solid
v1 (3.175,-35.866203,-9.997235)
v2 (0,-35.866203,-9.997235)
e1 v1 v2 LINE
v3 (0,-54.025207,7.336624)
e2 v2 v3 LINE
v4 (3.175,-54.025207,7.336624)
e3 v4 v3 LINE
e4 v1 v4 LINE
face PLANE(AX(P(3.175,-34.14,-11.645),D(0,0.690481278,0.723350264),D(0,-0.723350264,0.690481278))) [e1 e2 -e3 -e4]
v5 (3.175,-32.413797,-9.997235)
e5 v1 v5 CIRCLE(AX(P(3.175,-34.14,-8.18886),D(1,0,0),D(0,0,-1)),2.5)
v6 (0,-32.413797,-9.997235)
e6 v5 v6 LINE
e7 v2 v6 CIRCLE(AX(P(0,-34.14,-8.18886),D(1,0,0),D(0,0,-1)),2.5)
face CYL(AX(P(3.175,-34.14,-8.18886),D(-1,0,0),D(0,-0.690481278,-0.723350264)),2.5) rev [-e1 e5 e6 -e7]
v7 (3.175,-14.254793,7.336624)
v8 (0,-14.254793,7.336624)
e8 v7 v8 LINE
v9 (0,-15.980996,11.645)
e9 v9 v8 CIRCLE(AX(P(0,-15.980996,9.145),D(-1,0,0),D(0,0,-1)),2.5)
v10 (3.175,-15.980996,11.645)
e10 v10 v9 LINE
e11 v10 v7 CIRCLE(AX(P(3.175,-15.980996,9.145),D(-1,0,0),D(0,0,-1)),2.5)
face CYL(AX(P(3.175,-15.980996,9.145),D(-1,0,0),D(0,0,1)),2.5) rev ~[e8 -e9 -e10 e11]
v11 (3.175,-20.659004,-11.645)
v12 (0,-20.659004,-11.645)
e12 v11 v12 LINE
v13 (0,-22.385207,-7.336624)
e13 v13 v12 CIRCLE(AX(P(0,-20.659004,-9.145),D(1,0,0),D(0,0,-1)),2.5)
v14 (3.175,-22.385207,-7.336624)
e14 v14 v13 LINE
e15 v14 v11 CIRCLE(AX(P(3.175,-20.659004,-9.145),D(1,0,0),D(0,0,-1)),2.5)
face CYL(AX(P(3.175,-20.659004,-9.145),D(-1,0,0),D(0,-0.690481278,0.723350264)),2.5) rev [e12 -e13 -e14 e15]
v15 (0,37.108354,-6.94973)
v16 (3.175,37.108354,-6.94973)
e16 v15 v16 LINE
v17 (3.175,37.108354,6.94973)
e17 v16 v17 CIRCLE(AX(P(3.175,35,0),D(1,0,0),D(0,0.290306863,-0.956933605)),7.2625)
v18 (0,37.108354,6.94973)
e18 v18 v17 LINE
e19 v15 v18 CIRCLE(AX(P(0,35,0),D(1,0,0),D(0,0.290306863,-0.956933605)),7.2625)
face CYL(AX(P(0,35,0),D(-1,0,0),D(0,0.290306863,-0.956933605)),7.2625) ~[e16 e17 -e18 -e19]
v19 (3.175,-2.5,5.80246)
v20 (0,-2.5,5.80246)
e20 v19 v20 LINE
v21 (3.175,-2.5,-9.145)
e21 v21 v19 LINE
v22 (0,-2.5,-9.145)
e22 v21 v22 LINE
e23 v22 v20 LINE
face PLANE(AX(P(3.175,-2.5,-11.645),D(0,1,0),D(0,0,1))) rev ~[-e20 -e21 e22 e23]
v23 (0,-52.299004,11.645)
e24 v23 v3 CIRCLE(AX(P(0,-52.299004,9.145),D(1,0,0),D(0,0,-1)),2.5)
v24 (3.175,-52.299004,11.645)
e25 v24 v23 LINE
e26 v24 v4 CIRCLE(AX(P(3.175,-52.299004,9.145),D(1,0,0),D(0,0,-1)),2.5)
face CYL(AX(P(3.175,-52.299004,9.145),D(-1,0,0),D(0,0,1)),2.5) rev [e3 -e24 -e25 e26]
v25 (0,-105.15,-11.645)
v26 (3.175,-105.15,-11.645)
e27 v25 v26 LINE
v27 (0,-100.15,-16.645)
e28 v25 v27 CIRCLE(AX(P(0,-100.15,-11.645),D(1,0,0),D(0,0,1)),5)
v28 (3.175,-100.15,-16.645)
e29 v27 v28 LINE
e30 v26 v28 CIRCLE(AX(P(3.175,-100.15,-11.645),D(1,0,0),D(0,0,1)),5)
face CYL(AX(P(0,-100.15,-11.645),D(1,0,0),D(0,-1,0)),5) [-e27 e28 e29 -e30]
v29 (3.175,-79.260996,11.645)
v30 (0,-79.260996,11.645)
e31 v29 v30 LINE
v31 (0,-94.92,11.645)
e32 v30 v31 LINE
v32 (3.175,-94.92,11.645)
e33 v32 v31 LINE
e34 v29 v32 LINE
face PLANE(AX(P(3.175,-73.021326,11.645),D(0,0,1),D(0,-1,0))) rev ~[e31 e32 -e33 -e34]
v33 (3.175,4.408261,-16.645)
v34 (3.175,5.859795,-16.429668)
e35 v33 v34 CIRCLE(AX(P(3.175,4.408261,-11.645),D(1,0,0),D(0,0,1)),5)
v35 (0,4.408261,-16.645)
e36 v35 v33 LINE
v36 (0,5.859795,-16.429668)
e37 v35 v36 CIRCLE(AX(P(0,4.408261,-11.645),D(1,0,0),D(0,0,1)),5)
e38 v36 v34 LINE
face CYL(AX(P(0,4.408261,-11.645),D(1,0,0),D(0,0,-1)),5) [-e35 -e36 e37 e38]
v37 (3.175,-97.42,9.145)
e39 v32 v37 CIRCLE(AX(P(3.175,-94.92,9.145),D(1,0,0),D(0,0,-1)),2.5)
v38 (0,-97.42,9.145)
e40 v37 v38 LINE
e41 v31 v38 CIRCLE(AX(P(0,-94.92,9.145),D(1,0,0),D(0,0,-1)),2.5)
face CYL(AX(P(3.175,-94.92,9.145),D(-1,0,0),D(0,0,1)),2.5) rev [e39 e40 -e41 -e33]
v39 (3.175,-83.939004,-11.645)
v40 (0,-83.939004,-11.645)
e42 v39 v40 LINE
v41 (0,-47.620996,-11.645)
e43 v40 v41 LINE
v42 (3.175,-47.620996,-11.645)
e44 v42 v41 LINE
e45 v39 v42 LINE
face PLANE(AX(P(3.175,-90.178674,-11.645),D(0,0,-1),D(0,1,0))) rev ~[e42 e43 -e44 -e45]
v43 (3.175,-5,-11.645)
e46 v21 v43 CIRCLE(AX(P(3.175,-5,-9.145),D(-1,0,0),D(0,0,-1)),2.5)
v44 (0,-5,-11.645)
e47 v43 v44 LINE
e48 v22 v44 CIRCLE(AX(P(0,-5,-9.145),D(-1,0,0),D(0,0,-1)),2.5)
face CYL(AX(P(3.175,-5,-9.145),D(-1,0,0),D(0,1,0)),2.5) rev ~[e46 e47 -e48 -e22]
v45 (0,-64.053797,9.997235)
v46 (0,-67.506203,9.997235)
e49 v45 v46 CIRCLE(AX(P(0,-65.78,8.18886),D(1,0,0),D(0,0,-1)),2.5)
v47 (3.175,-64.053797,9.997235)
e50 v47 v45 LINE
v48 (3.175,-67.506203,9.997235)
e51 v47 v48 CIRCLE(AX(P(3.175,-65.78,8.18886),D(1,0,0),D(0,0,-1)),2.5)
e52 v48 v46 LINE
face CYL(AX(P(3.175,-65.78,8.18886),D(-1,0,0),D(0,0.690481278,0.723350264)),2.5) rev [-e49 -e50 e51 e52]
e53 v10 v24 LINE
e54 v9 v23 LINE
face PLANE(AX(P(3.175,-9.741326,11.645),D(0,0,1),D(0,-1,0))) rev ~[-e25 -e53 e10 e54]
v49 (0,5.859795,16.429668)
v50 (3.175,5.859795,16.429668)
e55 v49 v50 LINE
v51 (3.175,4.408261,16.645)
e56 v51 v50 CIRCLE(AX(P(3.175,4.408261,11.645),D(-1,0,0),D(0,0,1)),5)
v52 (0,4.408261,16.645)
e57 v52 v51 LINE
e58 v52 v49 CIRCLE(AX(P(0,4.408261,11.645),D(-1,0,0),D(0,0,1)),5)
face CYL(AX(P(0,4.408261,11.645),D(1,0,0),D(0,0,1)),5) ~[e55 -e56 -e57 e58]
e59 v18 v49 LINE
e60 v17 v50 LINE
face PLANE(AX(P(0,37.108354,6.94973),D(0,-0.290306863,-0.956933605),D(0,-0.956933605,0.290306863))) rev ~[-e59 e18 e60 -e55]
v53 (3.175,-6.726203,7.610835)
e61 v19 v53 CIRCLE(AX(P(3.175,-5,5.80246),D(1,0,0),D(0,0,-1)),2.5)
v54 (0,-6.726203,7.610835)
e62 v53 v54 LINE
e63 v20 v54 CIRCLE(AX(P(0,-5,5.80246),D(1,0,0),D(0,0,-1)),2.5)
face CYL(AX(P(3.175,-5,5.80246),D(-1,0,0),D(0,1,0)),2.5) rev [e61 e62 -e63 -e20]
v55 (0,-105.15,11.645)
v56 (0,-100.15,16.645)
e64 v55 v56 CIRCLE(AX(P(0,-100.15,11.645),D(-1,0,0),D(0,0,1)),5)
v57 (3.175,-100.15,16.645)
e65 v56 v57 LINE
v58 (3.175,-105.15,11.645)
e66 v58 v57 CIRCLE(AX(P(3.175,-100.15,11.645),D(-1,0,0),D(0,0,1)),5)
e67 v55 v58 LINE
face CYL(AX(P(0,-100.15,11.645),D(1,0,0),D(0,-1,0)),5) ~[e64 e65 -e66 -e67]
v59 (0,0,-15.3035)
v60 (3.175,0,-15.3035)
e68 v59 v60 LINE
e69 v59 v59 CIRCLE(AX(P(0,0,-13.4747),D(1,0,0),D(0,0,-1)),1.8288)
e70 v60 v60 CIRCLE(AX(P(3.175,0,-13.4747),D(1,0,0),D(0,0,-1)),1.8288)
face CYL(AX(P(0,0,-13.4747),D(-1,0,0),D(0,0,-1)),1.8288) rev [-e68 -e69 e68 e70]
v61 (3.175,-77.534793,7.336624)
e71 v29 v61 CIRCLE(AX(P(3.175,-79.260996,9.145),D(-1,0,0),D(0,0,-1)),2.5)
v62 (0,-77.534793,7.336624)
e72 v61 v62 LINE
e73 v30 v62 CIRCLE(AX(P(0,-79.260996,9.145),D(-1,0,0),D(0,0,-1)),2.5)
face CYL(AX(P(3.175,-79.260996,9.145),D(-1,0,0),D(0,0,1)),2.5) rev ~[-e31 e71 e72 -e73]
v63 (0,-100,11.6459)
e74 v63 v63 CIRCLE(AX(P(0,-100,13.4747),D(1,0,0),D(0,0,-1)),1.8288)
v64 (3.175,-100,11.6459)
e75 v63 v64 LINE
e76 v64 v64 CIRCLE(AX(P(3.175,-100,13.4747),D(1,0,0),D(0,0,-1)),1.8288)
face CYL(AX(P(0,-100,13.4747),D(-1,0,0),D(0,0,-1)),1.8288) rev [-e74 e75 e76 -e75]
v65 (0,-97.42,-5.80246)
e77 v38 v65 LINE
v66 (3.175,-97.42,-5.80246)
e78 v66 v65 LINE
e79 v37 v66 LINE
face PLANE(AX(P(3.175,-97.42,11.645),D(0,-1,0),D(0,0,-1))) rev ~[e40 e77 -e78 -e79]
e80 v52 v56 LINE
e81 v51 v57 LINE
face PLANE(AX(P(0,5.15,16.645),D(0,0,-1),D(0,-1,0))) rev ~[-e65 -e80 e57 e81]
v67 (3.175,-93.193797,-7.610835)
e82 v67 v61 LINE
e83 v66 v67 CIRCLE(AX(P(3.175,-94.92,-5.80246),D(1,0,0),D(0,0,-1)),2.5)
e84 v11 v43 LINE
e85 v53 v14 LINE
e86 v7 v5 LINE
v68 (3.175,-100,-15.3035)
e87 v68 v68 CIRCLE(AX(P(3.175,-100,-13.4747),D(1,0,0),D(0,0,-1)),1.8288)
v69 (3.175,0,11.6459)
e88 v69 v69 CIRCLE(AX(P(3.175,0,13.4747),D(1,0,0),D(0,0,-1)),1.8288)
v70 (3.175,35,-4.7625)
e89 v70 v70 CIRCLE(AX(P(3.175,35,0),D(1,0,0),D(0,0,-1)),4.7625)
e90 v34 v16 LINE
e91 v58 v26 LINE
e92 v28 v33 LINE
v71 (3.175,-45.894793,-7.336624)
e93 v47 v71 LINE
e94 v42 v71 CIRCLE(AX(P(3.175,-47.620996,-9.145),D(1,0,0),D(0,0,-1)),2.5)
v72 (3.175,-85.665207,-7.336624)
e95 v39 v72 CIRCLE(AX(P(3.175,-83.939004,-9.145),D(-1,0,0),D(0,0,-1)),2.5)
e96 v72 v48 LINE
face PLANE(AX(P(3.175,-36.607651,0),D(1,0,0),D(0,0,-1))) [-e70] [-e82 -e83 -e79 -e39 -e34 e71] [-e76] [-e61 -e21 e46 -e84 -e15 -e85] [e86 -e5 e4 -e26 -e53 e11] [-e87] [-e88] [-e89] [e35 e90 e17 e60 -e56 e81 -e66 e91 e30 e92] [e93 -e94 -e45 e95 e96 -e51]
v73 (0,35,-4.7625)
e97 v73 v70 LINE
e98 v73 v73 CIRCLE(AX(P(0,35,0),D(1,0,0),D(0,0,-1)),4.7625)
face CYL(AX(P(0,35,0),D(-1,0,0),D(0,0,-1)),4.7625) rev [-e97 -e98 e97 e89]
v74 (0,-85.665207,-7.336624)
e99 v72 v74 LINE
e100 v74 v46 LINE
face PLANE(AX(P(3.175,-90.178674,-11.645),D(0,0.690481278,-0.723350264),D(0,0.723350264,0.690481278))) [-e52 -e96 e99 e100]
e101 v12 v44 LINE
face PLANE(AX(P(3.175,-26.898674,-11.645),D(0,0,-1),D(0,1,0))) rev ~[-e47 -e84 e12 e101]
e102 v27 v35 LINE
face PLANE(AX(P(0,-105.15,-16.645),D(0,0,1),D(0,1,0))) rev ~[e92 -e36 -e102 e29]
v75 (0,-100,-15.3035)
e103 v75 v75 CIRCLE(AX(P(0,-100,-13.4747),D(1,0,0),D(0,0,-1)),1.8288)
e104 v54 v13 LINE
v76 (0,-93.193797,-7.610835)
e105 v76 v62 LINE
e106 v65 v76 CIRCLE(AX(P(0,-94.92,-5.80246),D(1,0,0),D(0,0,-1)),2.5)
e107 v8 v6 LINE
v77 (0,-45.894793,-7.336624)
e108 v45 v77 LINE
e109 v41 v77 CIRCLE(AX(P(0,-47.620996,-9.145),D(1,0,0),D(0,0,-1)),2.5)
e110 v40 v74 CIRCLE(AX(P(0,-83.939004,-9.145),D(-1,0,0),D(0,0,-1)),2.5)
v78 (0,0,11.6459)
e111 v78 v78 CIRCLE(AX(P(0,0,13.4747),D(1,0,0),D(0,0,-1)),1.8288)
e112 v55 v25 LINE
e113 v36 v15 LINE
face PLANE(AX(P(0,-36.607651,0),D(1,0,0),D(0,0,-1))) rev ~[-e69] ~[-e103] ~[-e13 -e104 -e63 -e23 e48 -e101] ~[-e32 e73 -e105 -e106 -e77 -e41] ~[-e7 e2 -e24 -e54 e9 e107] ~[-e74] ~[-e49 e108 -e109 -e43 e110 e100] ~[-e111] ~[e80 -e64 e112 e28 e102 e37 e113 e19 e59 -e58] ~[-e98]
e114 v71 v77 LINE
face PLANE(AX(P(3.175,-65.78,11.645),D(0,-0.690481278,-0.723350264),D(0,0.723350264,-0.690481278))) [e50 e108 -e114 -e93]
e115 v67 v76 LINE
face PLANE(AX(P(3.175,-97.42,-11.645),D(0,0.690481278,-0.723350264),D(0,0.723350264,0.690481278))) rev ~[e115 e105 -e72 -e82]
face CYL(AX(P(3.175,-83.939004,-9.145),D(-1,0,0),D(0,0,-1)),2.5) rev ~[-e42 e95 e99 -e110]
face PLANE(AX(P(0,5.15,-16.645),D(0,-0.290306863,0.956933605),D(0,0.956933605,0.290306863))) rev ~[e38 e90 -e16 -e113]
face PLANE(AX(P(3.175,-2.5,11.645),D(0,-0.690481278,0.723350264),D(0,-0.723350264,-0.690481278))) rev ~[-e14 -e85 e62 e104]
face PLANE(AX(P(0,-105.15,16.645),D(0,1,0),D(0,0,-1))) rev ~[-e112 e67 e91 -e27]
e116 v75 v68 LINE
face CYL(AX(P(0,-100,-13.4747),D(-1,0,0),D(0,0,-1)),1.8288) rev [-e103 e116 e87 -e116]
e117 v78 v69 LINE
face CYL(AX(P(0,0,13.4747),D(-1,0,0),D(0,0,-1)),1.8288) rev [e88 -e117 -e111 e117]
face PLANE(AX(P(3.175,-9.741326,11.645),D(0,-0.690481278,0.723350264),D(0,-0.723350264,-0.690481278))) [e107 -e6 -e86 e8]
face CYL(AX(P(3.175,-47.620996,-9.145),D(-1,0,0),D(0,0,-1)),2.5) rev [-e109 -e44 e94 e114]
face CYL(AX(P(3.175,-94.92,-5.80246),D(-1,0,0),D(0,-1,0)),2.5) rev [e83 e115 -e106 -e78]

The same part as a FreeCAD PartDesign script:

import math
import FreeCAD as App
import Part
import Sketcher

V = App.Vector


def edges_at(feature, points):
    """Names of the edges that pass closest to the given points."""
    edges = feature.Shape.Edges
    near = lambda p: min(range(len(edges)), key=lambda i: edges[i].distToShape(Part.Vertex(*p))[0])
    return sorted({f"Edge{near(p) + 1}" for p in points})

doc = App.newDocument("Part")
params = doc.addObject("Spreadsheet::Sheet", "Params")
for row, (alias, value) in enumerate([
    ("sketch1_width", "110.3 mm"),
    ("sketch1_height", "33.29 mm"),
    ("pad1_length", "3.175 mm"),
    ("sketch2_height", "23.29 mm"),
    ("fillet_radius", "2.5 mm"),
    ("fillet2_radius", "5 mm"),
], start=1):
    params.set(f"A{row}", alias)
    params.set(f"B{row}", "=" + value)
    params.setAlias(f"B{row}", alias)

body = doc.addObject("PartDesign::Body", "Body")

# Sketch on YZ plane
sketch1 = body.newObject("Sketcher::SketchObject", "Sketch")
sketch1.AttachmentSupport = (doc.getObject("YZ_Plane"), [""])
sketch1.MapMode = "FlatFace"
sketch1.addGeometry([
    Part.LineSegment(V(-105.2, 16.6, 0), V(-105.2, -16.6, 0)),  # 0
    Part.LineSegment(V(-105.2, -16.6, 0), V(5.2, -16.6, 0)),  # 1
    Part.LineSegment(V(5.2, -16.6, 0), V(37.1, -6.9, 0)),  # 2
    Part.ArcOfCircle(Part.Circle(V(35, 0, 0), V(0, 0, 1), 7.3), math.radians(-73), math.radians(73)),  # 3
    Part.LineSegment(V(37.1, 6.9, 0), V(5.2, 16.6, 0)),  # 4
    Part.LineSegment(V(5.2, 16.6, 0), V(-105.2, 16.6, 0)),  # 5
    Part.Circle(V(-100, 13.5, 0), V(0, 0, 1), 1.8),  # 6
    Part.Circle(V(-100, -13.5, 0), V(0, 0, 1), 1.8),  # 7
    Part.Circle(V(0, 13.5, 0), V(0, 0, 1), 1.8),  # 8
    Part.Circle(V(0, -13.5, 0), V(0, 0, 1), 1.8),  # 9
    Part.Circle(V(35, 0, 0), V(0, 0, 1), 4.8),  # 10
], False)
sketch1.addConstraint([
    Sketcher.Constraint("Coincident", 0, 2, 1, 1),
    Sketcher.Constraint("Coincident", 1, 2, 2, 1),
    Sketcher.Constraint("Tangent", 2, 2, 3, 1),
    Sketcher.Constraint("Tangent", 3, 2, 4, 1),
    Sketcher.Constraint("Coincident", 4, 2, 5, 1),
    Sketcher.Constraint("Coincident", 5, 2, 0, 1),
    Sketcher.Constraint("Vertical", 0),
    Sketcher.Constraint("Horizontal", 1),
    Sketcher.Constraint("Horizontal", 5),
    Sketcher.Constraint("Coincident", 10, 3, 3, 3),
    Sketcher.Constraint("Equal", 6, 7),
    Sketcher.Constraint("Equal", 7, 8),
    Sketcher.Constraint("Equal", 8, 9),
    Sketcher.Constraint("Symmetric", 8, 3, 9, 3, -1, 1),
    Sketcher.Constraint("Symmetric", 6, 3, 7, 3, -1),
    Sketcher.Constraint("Symmetric", 2, 2, 3, 2, -1),
    Sketcher.Constraint("PointOnObject", 8, 3, -2),
    Sketcher.Constraint("Horizontal", 6, 3, 8, 3),
    Sketcher.Constraint("Vertical", 1, 2, 4, 2),
    Sketcher.Constraint("Diameter", 10, 9.525),
    Sketcher.Constraint("DistanceX", 1, 1, 1, 2, 110.3),
    Sketcher.Constraint("DistanceX", -1, 1, 3, 3, 35.0),
    Sketcher.Constraint("DistanceX", 6, 3, -1, 1, 100.0),
    Sketcher.Constraint("Diameter", 6, 3.6576),
    Sketcher.Constraint("DistanceY", 0, 2, 0, 1, 33.29),
    Sketcher.Constraint("Radius", 3, 7.2625),
    Sketcher.Constraint("DistanceX", 0, 2, -1, 1, 105.15),
    Sketcher.Constraint("DistanceY", -1, 1, 6, 3, 13.4747),
])
sketch1.setExpression("Constraints[20]", "Params.sketch1_width")
sketch1.setExpression("Constraints[24]", "Params.sketch1_height")
pad1 = body.newObject("PartDesign::Pad", "Pad")
pad1.Profile = sketch1
pad1.setExpression("Length", "Params.pad1_length")

# Sketch on YZ plane
sketch2 = body.newObject("Sketcher::SketchObject", "Sketch001")
sketch2.AttachmentSupport = (doc.getObject("YZ_Plane"), [""])
sketch2.MapMode = "FlatFace"
sketch2.AttachmentOffset = App.Placement(V(0, 0, 3.175), App.Rotation())
sketch2.addGeometry([
    Part.LineSegment(V(-2, -12, 0), V(-2, 12, 0)),  # 0
    Part.LineSegment(V(-2, 12, 0), V(-27, -12, 0)),  # 1
    Part.LineSegment(V(-27, -12, 0), V(-2, -12, 0)),  # 2
    Part.LineSegment(V(-34, -12, 0), V(-10, 12, 0)),  # 3
    Part.LineSegment(V(-10, 12, 0), V(-59, 12, 0)),  # 4
    Part.LineSegment(V(-59, 12, 0), V(-34, -12, 0)),  # 5
    Part.LineSegment(V(-73, 12, 0), V(-97, 12, 0)),  # 6
    Part.LineSegment(V(-97, 12, 0), V(-97, -12, 0)),  # 7
    Part.LineSegment(V(-97, -12, 0), V(-73, 12, 0)),  # 8
    Part.LineSegment(V(-90, -12, 0), V(-41, -12, 0)),  # 9
    Part.LineSegment(V(-41, -12, 0), V(-66, 12, 0)),  # 10
    Part.LineSegment(V(-66, 12, 0), V(-90, -12, 0)),  # 11
], False)
sketch2.addConstraint([
    Sketcher.Constraint("Coincident", 0, 2, 1, 1),
    Sketcher.Constraint("Coincident", 1, 2, 2, 1),
    Sketcher.Constraint("Coincident", 2, 2, 0, 1),
    Sketcher.Constraint("Coincident", 3, 2, 4, 1),
    Sketcher.Constraint("Coincident", 4, 2, 5, 1),
    Sketcher.Constraint("Coincident", 5, 2, 3, 1),
    Sketcher.Constraint("Coincident", 6, 2, 7, 1),
    Sketcher.Constraint("Coincident", 7, 2, 8, 1),
    Sketcher.Constraint("Coincident", 8, 2, 6, 1),
    Sketcher.Constraint("Coincident", 9, 2, 10, 1),
    Sketcher.Constraint("Coincident", 10, 2, 11, 1),
    Sketcher.Constraint("Coincident", 11, 2, 9, 1),
    Sketcher.Constraint("Vertical", 0),
    Sketcher.Constraint("Horizontal", 2),
    Sketcher.Constraint("Horizontal", 4),
    Sketcher.Constraint("Horizontal", 6),
    Sketcher.Constraint("Vertical", 7),
    Sketcher.Constraint("Horizontal", 9),
    Sketcher.Constraint("Parallel", 1, 3),
    Sketcher.Constraint("Parallel", 3, 8),
    Sketcher.Constraint("Parallel", 5, 10),
    Sketcher.Constraint("Parallel", 8, 11),
    Sketcher.Constraint("Horizontal", 0, 2, 3, 2),
    Sketcher.Constraint("Horizontal", 2, 2, 5, 2),
    Sketcher.Constraint("Horizontal", 4, 2, 6, 2),
    Sketcher.Constraint("Horizontal", 5, 2, 7, 2),
    Sketcher.Constraint("Horizontal", 7, 2, 9, 2),
    Sketcher.Constraint("Horizontal", 8, 2, 10, 2),
    Sketcher.Constraint("Equal", 3, 5),
    Sketcher.Constraint("DistanceY", 0, 1, 0, 2, 23.29),
    Sketcher.Constraint("DistanceX", 0, 2, -1, 1, 2.5),
    Sketcher.Constraint("DistanceX", 5, 2, -1, 1, 34.14),
    Sketcher.Constraint("DistanceX", 6, 2, -1, 1, 97.42),
    Sketcher.Constraint("DistanceX", 10, 2, -1, 1, 65.78),
    Sketcher.Constraint("DistanceY", -1, 1, 0, 2, 11.645),
    Sketcher.Constraint("DistanceX", 4, 2, 4, 1, 48.797348),
])
sketch2.setExpression("Constraints[29]", "Params.sketch2_height")
pocket1 = body.newObject("PartDesign::Pocket", "Pocket")
pocket1.Profile = sketch2
pocket1.Type = "ThroughAll"
doc.recompute()

fillet = body.newObject("PartDesign::Fillet", "Fillet")
fillet.Base = (pocket1, edges_at(pocket1, [
    (1.587, -9.741, 11.645),
    (1.587, -34.14, -11.645),
    (1.587, -58.539, 11.645),
    (1.587, -26.899, -11.645),
    (1.587, -2.5, 11.645),
    (1.587, -2.5, -11.645),
    (1.587, -90.179, -11.645),
    (1.587, -65.78, 11.645),
    (1.587, -41.381, -11.645),
    (1.587, -73.021, 11.645),
    (1.587, -97.42, -11.645),
    (1.587, -97.42, 11.645),
]))
fillet.setExpression("Radius", "Params.fillet_radius")
doc.recompute()

fillet2 = body.newObject("PartDesign::Fillet", "Fillet001")
fillet2.Base = (fillet, edges_at(fillet, [
    (1.587, -105.15, -16.645),
    (1.587, -105.15, 16.645),
    (1.587, 5.15, 16.645),
    (1.587, 5.15, -16.645),
]))
fillet2.setExpression("Radius", "Params.fillet2_radius")

doc.recompute()
